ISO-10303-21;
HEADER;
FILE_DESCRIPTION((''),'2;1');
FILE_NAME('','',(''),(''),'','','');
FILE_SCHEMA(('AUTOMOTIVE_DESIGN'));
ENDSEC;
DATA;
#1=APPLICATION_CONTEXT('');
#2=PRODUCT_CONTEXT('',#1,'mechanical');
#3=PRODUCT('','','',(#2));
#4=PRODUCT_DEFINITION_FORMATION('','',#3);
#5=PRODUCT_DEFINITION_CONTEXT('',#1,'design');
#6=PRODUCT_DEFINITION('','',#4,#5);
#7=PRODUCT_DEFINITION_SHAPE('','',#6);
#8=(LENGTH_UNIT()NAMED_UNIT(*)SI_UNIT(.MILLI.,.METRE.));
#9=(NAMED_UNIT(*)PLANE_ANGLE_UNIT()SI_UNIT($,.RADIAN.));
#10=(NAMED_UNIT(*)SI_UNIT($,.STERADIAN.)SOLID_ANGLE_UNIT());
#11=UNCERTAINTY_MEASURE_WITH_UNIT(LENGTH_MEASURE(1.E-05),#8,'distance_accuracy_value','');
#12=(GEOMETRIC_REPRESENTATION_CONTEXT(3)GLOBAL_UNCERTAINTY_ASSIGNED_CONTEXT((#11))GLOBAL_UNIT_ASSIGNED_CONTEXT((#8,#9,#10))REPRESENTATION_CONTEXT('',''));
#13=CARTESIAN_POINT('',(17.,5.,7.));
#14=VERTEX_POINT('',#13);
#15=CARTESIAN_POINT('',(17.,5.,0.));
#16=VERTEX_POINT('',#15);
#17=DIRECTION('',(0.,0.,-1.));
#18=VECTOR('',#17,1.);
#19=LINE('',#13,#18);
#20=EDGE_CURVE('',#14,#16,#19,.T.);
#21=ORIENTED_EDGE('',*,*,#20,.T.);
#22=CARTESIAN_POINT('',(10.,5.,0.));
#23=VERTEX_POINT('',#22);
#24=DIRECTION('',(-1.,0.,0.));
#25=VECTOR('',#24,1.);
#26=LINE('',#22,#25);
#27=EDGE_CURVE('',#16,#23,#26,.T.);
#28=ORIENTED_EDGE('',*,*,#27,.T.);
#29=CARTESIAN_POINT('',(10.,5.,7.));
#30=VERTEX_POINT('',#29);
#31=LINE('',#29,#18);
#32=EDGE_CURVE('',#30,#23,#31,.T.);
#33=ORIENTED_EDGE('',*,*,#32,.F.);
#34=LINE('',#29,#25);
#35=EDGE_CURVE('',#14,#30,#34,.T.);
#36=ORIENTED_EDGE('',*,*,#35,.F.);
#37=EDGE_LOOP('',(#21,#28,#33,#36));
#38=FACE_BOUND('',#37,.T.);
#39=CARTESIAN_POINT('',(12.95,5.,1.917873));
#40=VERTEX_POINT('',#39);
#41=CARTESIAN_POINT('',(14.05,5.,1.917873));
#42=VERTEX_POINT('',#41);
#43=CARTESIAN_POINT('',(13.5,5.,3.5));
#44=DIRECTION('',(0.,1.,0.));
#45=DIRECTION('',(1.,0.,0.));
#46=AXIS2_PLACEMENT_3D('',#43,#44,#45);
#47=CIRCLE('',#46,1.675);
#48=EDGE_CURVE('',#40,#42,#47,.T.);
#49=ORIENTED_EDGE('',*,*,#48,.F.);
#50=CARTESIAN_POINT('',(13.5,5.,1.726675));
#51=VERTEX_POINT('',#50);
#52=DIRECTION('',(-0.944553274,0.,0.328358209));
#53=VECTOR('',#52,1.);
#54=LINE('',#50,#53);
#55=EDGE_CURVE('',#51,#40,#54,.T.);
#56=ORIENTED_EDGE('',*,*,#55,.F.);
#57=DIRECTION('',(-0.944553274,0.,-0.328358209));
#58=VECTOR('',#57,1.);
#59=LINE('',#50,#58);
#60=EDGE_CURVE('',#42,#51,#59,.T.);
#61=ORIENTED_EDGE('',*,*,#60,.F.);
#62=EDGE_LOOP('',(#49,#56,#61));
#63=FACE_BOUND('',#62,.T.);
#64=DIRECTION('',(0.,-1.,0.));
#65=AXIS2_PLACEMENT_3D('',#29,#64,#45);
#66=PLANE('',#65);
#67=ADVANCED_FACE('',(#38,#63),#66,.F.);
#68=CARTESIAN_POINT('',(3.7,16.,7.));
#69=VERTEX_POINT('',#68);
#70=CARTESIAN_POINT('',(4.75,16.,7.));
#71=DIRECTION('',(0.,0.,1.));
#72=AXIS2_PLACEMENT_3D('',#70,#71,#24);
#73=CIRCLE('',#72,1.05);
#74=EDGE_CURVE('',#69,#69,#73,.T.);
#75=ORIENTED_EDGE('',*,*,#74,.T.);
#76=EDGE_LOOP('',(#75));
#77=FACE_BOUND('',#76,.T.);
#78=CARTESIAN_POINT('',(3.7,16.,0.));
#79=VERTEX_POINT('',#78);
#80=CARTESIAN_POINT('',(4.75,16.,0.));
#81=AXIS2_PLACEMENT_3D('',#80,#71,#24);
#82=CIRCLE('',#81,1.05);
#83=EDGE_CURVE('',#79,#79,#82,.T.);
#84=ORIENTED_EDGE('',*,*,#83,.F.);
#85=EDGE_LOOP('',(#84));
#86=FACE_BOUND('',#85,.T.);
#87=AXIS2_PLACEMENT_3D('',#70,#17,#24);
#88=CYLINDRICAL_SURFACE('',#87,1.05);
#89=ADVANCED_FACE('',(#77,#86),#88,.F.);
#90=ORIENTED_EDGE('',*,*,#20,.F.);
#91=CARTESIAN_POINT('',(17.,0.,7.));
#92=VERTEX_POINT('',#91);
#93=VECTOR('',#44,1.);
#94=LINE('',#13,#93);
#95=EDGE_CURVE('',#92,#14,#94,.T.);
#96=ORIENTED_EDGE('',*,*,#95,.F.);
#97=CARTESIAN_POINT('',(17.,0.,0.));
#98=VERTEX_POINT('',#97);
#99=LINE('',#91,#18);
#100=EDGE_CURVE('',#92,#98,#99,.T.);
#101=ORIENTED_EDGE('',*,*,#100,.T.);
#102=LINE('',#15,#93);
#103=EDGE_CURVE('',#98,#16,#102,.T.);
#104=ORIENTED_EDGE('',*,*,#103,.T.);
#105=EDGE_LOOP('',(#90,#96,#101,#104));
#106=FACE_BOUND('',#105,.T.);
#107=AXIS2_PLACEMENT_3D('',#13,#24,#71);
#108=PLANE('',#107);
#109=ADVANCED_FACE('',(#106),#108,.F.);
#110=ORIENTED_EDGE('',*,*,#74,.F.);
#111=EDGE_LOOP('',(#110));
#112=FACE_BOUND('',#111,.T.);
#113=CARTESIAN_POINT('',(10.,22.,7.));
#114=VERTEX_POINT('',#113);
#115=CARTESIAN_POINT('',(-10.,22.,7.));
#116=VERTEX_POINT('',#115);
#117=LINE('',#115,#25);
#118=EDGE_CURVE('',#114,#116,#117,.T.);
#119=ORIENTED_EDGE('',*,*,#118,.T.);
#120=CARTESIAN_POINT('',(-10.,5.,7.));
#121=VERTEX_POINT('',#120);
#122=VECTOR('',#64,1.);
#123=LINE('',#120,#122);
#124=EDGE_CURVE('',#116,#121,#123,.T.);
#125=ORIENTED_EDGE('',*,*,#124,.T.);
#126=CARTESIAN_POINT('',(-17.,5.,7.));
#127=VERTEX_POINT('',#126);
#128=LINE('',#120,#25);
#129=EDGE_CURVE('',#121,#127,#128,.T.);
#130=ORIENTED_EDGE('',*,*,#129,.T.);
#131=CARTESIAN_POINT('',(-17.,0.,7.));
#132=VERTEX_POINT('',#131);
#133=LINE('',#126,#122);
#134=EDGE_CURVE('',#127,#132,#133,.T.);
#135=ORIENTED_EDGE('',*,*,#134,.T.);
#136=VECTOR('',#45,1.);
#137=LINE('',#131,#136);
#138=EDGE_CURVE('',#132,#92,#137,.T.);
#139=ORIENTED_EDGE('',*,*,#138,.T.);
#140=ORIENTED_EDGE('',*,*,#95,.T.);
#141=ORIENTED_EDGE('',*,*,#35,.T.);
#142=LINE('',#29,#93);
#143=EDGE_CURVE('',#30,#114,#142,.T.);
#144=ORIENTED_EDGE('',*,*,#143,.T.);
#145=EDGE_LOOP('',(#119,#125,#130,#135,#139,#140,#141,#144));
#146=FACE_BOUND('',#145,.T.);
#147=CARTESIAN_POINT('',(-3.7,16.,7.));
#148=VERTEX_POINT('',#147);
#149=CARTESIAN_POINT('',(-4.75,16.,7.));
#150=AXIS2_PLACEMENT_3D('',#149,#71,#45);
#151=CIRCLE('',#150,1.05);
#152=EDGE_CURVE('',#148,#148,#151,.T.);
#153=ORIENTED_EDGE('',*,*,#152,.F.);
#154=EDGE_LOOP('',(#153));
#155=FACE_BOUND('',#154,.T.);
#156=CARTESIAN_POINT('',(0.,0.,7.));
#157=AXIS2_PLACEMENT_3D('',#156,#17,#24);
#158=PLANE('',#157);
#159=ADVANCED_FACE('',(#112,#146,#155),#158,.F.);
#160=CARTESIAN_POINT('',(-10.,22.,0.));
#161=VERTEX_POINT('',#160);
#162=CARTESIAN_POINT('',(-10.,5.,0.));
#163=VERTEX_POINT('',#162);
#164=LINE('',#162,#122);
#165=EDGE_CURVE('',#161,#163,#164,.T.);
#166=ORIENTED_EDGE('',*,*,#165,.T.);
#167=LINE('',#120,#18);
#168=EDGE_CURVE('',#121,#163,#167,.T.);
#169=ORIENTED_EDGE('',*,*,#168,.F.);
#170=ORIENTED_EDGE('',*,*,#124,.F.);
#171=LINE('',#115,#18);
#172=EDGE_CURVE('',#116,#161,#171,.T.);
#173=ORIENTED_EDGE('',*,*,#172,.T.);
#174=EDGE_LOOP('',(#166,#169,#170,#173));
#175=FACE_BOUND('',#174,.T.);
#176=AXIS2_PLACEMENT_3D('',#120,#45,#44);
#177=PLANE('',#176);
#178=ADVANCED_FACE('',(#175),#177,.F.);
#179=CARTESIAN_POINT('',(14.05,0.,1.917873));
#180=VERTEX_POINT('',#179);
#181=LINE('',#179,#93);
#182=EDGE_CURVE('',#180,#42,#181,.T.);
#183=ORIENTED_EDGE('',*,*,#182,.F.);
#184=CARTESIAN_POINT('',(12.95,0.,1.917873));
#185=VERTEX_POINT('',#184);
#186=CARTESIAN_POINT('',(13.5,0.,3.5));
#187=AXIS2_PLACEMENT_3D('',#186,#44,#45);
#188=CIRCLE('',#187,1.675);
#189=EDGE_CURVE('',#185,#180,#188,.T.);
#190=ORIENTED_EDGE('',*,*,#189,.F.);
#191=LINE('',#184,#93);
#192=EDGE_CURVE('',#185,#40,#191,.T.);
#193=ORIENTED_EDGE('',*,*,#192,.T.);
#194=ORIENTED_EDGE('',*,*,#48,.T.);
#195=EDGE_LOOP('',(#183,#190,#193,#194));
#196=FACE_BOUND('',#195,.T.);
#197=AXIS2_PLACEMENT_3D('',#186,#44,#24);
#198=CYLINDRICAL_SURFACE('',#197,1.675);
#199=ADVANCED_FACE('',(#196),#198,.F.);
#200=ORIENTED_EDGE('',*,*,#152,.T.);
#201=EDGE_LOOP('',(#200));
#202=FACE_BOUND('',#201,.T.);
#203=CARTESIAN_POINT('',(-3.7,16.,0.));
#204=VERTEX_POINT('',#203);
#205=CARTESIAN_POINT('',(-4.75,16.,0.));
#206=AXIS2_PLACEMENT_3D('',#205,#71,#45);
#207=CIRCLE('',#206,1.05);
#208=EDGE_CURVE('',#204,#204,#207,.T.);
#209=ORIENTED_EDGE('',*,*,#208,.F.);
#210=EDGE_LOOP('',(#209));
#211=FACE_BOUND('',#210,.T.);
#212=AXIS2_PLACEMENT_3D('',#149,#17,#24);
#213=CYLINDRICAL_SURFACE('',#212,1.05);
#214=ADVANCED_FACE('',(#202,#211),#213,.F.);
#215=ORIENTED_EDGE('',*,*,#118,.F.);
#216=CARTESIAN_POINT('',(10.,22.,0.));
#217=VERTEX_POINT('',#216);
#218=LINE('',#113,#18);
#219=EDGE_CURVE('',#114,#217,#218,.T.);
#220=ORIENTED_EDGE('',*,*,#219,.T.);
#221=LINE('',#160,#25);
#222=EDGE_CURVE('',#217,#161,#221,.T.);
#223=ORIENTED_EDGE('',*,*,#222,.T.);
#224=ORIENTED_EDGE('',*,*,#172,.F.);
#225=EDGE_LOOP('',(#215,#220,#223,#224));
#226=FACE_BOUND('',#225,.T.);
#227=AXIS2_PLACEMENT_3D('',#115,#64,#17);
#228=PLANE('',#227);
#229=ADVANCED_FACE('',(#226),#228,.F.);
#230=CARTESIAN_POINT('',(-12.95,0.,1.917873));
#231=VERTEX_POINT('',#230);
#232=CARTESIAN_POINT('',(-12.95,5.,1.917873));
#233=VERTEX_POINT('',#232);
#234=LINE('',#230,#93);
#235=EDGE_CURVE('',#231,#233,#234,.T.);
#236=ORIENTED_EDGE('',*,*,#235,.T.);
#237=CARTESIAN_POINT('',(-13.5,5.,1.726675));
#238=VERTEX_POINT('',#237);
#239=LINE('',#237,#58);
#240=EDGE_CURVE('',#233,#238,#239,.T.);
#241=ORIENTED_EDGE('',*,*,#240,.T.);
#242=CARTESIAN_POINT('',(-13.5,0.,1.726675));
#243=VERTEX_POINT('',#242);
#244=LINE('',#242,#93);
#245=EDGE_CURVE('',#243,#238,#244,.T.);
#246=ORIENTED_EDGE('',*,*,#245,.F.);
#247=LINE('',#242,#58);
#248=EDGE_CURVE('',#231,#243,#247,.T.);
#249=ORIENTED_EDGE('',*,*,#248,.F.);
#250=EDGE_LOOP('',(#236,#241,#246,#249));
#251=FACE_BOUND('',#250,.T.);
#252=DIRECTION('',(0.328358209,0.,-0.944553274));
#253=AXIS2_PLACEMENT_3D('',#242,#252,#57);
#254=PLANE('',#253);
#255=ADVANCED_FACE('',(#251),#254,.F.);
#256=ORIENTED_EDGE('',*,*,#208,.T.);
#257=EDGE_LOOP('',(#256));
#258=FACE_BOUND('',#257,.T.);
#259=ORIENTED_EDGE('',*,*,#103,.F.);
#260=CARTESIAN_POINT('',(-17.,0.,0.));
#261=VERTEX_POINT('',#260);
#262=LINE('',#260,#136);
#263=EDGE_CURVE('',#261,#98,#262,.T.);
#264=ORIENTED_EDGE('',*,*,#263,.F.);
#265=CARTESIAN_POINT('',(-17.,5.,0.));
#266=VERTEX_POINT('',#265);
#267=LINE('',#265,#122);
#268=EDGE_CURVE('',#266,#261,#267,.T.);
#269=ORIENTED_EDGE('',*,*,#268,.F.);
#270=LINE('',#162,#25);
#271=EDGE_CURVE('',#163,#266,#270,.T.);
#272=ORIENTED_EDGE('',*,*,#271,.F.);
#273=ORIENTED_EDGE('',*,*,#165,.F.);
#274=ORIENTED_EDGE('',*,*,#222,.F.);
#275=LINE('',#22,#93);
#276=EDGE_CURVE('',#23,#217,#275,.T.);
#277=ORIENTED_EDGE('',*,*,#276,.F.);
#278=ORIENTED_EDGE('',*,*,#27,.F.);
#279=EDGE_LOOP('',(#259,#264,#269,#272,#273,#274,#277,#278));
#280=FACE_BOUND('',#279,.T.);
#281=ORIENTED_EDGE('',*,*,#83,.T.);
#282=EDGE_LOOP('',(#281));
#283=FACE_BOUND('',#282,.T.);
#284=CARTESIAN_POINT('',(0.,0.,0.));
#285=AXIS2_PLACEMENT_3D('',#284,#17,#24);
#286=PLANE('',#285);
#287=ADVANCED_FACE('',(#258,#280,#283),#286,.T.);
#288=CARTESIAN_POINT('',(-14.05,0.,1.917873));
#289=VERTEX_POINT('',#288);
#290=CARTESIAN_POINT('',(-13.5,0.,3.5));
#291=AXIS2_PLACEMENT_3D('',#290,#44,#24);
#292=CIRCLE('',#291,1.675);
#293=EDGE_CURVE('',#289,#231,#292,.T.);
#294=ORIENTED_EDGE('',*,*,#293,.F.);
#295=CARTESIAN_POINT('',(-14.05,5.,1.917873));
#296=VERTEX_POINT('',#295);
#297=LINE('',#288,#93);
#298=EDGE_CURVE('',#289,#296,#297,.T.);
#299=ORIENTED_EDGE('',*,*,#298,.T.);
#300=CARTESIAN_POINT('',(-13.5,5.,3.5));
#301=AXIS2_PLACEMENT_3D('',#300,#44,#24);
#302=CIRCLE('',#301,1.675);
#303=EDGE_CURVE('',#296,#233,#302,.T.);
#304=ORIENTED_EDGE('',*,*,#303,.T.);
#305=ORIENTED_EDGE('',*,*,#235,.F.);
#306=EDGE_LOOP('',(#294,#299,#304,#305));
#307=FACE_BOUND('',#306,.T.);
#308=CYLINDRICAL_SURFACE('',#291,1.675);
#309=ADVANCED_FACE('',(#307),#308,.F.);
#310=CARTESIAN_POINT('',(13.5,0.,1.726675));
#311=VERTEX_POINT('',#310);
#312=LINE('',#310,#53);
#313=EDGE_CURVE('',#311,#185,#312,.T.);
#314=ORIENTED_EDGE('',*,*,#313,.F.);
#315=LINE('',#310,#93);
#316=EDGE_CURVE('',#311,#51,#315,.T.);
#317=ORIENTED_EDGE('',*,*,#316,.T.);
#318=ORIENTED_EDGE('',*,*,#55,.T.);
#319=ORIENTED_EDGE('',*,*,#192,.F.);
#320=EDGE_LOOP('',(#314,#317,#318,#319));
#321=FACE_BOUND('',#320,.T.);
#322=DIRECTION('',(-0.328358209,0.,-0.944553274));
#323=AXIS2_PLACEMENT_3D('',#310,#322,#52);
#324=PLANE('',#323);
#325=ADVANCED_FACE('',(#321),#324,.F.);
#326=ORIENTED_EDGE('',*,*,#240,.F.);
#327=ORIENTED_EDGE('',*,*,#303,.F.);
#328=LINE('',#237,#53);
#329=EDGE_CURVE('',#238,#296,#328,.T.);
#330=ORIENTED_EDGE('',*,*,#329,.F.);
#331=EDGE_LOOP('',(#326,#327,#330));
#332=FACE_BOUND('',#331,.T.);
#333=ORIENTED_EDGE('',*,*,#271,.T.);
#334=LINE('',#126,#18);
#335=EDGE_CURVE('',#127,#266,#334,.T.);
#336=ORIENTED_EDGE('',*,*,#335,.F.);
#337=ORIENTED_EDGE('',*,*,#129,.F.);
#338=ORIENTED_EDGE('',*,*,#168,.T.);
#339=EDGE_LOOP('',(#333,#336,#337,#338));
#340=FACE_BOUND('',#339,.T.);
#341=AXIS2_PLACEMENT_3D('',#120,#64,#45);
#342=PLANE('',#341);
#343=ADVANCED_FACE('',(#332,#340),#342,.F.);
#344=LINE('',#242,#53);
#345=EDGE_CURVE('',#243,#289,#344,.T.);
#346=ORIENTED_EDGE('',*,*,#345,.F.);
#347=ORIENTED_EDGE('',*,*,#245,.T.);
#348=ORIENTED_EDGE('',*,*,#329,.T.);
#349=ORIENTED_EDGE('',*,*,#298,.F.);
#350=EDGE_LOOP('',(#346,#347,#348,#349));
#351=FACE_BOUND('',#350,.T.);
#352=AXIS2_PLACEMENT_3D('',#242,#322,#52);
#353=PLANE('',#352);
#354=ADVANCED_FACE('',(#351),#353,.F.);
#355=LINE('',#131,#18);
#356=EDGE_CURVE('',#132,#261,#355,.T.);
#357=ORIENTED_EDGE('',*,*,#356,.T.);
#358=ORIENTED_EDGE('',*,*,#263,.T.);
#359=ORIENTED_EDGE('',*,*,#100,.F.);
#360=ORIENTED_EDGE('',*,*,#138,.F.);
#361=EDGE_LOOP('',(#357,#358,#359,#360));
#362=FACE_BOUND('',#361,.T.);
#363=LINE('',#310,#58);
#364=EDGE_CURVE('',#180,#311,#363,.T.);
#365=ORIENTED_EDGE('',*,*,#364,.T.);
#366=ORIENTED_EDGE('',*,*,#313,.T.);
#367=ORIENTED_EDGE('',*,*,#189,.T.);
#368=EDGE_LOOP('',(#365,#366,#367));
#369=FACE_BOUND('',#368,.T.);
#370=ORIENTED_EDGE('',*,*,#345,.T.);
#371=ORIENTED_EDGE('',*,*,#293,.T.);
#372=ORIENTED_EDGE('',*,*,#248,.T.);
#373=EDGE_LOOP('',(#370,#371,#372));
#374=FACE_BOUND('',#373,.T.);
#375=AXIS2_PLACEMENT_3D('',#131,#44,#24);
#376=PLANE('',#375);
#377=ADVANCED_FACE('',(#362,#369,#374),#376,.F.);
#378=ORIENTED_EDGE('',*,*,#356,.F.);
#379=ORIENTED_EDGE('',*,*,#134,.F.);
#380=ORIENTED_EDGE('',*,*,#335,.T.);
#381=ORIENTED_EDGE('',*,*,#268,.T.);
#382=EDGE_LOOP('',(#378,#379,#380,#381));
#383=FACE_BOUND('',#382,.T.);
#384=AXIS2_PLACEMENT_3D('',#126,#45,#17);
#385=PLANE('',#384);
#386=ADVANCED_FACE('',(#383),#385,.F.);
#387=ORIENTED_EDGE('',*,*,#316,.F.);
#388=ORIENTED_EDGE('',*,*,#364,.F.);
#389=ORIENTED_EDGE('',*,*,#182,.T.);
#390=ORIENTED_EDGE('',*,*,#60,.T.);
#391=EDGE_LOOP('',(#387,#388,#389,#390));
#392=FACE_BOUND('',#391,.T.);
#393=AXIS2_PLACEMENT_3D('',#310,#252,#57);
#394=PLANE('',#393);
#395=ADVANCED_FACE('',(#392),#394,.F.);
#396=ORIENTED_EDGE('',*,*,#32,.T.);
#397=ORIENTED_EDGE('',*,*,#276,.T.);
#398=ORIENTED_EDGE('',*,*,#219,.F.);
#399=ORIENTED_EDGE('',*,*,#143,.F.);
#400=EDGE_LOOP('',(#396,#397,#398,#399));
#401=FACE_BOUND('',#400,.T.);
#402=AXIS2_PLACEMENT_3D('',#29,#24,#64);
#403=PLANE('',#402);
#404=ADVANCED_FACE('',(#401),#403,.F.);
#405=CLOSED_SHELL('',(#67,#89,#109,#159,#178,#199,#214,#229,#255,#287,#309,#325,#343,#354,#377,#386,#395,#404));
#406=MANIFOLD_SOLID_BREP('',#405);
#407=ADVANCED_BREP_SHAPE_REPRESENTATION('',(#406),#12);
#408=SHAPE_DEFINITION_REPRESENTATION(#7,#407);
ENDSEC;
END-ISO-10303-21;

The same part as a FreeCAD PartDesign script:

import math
import FreeCAD as App
import Part
import Sketcher

V = App.Vector


def add_polygon(sketch, points):
    """Adds a closed chain of lines whose ends are joined by coincident constraints."""
    first, n = sketch.GeometryCount, len(points)
    for a, b in zip(points, points[1:] + points[:1]):
        sketch.addGeometry(Part.LineSegment(App.Vector(*a, 0), App.Vector(*b, 0)), False)
    for i in range(n):
        sketch.addConstraint(Sketcher.Constraint("Coincident", first + i, 2, first + (i + 1) % n, 1))

doc = App.newDocument("Part")
params = doc.addObject("Spreadsheet::Sheet", "Params")
for row, (alias, value) in enumerate([
    ("sketch1_diameter", "2.1 mm"),
    ("sketch1_width", "7 mm"),
    ("sketch1_width2", "34 mm"),
    ("sketch1_height", "5 mm"),
    ("sketch1_height2", "17 mm"),
    ("pad1_length", "7 mm"),
], start=1):
    params.set(f"A{row}", alias)
    params.set(f"B{row}", "=" + value)
    params.setAlias(f"B{row}", alias)

body = doc.addObject("PartDesign::Body", "Body")

# Sketch on XY plane
sketch1 = body.newObject("Sketcher::SketchObject", "Sketch")
sketch1.AttachmentSupport = (doc.getObject("XY_Plane"), [""])
sketch1.MapMode = "FlatFace"
add_polygon(sketch1, [(-10, 5), (-17, 5), (-17, 0), (17, 0), (17, 5), (10, 5), (10, 22), (-10, 22)])  # lines 0-7
sketch1.addGeometry(Part.Circle(V(-4.8, 16, 0), V(0, 0, 1), 1.1), False)  # 8
sketch1.addGeometry(Part.Circle(V(4.8, 16, 0), V(0, 0, 1), 1.1), False)  # 9
sketch1.addConstraint(Sketcher.Constraint("Horizontal", 0))
sketch1.addConstraint(Sketcher.Constraint("Vertical", 1))
sketch1.addConstraint(Sketcher.Constraint("Horizontal", 2))
sketch1.addConstraint(Sketcher.Constraint("Vertical", 3))
sketch1.addConstraint(Sketcher.Constraint("Horizontal", 4))
sketch1.addConstraint(Sketcher.Constraint("Vertical", 5))
sketch1.addConstraint(Sketcher.Constraint("Horizontal", 6))
sketch1.addConstraint(Sketcher.Constraint("Vertical", 7))
sketch1.addConstraint(Sketcher.Constraint("Equal", 8, 9))
sketch1.addConstraint(Sketcher.Constraint("Symmetric", 1, 2, 2, 2, -1, 1))
sketch1.addConstraint(Sketcher.Constraint("Symmetric", 8, 3, 9, 3, -2))
sketch1.addConstraint(Sketcher.Constraint("Symmetric", 4, 2, 7, 2, -2))
sketch1.addConstraint(Sketcher.Constraint("Diameter", 8, 2.1))
sketch1.addConstraint(Sketcher.Constraint("DistanceX", 0, 2, 0, 1, 7.0))
sketch1.addConstraint(Sketcher.Constraint("DistanceX", 2, 1, 2, 2, 34.0))
sketch1.addConstraint(Sketcher.Constraint("DistanceY", 1, 2, 1, 1, 5.0))
sketch1.addConstraint(Sketcher.Constraint("DistanceY", 5, 1, 5, 2, 17.0))
sketch1.addConstraint(Sketcher.Constraint("DistanceY", -1, 1, 8, 3, 16.0))
sketch1.addConstraint(Sketcher.Constraint("DistanceX", 8, 3, 9, 3, 9.5))
sketch1.setExpression("Constraints[20]", "Params.sketch1_diameter")
sketch1.setExpression("Constraints[21]", "Params.sketch1_width")
sketch1.setExpression("Constraints[22]", "Params.sketch1_width2")
sketch1.setExpression("Constraints[23]", "Params.sketch1_height")
sketch1.setExpression("Constraints[24]", "Params.sketch1_height2")
pad1 = body.newObject("PartDesign::Pad", "Pad")
pad1.Profile = sketch1
pad1.setExpression("Length", "Params.pad1_length")

# Sketch on XZ plane
sketch2 = body.newObject("Sketcher::SketchObject", "Sketch001")
sketch2.AttachmentSupport = (doc.getObject("XZ_Plane"), [""])
sketch2.MapMode = "FlatFace"
sketch2.AttachmentOffset = App.Placement(V(0, 0, -5), App.Rotation())
sketch2.addGeometry(Part.LineSegment(V(-12.9, 1.9, 0), V(-13.5, 1.7, 0)), False)
sketch2.addGeometry(Part.LineSegment(V(-13.5, 1.7, 0), V(-14.1, 1.9, 0)), False)
sketch2.addGeometry(Part.ArcOfCircle(Part.Circle(V(-13.5, 3.5, 0), V(0, 0, 1), 1.7), math.radians(-71), math.radians(251)), False)
sketch2.addGeometry(Part.LineSegment(V(14.1, 1.9, 0), V(13.5, 1.7, 0)), False)
sketch2.addGeometry(Part.LineSegment(V(13.5, 1.7, 0), V(12.9, 1.9, 0)), False)
sketch2.addGeometry(Part.ArcOfCircle(Part.Circle(V(13.5, 3.5, 0), V(0, 0, 1), 1.7), math.radians(-71), math.radians(251)), False)
sketch2.addConstraint(Sketcher.Constraint("Coincident", 0, 2, 1, 1))
sketch2.addConstraint(Sketcher.Constraint("Tangent", 1, 2, 2, 2))
sketch2.addConstraint(Sketcher.Constraint("Tangent", 2, 1, 0, 1))
sketch2.addConstraint(Sketcher.Constraint("Coincident", 3, 2, 4, 1))
sketch2.addConstraint(Sketcher.Constraint("Tangent", 4, 2, 5, 2))
sketch2.addConstraint(Sketcher.Constraint("Tangent", 5, 1, 3, 1))
sketch2.addConstraint(Sketcher.Constraint("Equal", 2, 5))
sketch2.addConstraint(Sketcher.Constraint("Symmetric", 2, 3, 5, 3, -2))
sketch2.addConstraint(Sketcher.Constraint("Symmetric", 0, 2, 3, 2, -2))
sketch2.addConstraint(Sketcher.Constraint("Parallel", 0, 3))
sketch2.addConstraint(Sketcher.Constraint("Radius", 2, 1.675))
sketch2.addConstraint(Sketcher.Constraint("DistanceX", 2, 3, 5, 3, 27.0))
sketch2.addConstraint(Sketcher.Constraint("DistanceY", -1, 1, 2, 3, 3.5))
sketch2.addConstraint(Sketcher.Constraint("DistanceX", 1, 2, 2, 1, 1.1))
pocket1 = body.newObject("PartDesign::Pocket", "Pocket")
pocket1.Profile = sketch2
pocket1.Type = "ThroughAll"
pocket1.Reversed = True

doc.recompute()
